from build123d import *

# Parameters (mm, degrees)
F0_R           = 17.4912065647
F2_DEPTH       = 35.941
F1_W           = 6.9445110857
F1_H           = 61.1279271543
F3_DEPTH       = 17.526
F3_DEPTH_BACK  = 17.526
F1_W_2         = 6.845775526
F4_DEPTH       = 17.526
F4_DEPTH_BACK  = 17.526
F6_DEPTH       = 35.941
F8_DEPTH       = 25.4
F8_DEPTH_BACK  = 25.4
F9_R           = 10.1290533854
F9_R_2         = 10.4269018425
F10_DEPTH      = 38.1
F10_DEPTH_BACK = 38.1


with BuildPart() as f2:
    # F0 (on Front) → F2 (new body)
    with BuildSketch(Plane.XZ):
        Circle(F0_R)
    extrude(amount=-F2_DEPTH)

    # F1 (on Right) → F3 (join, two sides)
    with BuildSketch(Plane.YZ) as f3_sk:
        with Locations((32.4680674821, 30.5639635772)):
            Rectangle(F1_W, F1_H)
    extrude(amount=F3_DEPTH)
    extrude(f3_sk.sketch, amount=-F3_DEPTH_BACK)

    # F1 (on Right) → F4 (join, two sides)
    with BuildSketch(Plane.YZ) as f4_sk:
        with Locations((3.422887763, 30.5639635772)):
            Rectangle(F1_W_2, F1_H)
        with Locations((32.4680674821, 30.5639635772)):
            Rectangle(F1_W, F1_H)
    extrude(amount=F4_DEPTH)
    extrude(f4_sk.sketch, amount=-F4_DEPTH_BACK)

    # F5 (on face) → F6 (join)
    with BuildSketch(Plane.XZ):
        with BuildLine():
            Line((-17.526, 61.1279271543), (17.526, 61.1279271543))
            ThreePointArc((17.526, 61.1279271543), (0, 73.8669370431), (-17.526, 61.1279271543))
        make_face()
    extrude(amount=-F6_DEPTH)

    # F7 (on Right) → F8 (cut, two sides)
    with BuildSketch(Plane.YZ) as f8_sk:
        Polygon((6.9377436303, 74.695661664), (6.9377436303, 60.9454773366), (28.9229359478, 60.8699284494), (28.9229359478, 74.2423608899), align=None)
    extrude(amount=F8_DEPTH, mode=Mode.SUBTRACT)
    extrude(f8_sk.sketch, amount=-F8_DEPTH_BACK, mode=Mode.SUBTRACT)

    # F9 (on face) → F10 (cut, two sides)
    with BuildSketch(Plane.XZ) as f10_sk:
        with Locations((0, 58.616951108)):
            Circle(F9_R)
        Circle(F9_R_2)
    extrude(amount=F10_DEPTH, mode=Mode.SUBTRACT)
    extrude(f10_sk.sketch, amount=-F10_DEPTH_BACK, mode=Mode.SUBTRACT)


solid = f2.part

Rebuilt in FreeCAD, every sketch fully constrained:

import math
import FreeCAD as App
import Part
import Sketcher
from FreeCAD import Vector
Q = App.Units.Quantity

doc = App.newDocument("Part")
body = doc.addObject("PartDesign::Body", "Body")

# Sketch on XZ plane
sketch1 = body.newObject("Sketcher::SketchObject", "Sketch")
sketch1.AttachmentSupport = (doc.getObject("XZ_Plane"), [""])
sketch1.MapMode = "FlatFace"
sketch1.addGeometry(Part.Circle(Vector(0, 0, 0), Vector(0, 0, 1), 17), False)
sketch1.addConstraint(Sketcher.Constraint("Coincident", 0, 3, -1, 1))
sketch1.addConstraint(Sketcher.Constraint("Diameter", 0, Q("34.982413 mm")))
pad1 = body.newObject("PartDesign::Pad", "Pad")
pad1.Profile = sketch1
pad1.Length = Q("1.415 in")
pad1.Reversed = True

# Sketch on YZ plane
sketch2 = body.newObject("Sketcher::SketchObject", "Sketch001")
sketch2.AttachmentSupport = (doc.getObject("YZ_Plane"), [""])
sketch2.MapMode = "FlatFace"
sketch2.addGeometry(Part.LineSegment(Vector(29, 61, 0), Vector(29, 0, 0)), False)
sketch2.addGeometry(Part.LineSegment(Vector(29, 0, 0), Vector(36, 0, 0)), False)
sketch2.addGeometry(Part.LineSegment(Vector(36, 0, 0), Vector(36, 61, 0)), False)
sketch2.addGeometry(Part.LineSegment(Vector(36, 61, 0), Vector(29, 61, 0)), False)
sketch2.addConstraint(Sketcher.Constraint("Coincident", 0, 2, 1, 1))
sketch2.addConstraint(Sketcher.Constraint("Coincident", 1, 2, 2, 1))
sketch2.addConstraint(Sketcher.Constraint("Coincident", 2, 2, 3, 1))
sketch2.addConstraint(Sketcher.Constraint("Coincident", 3, 2, 0, 1))
sketch2.addConstraint(Sketcher.Constraint("Vertical", 0))
sketch2.addConstraint(Sketcher.Constraint("Horizontal", 1))
sketch2.addConstraint(Sketcher.Constraint("Vertical", 2))
sketch2.addConstraint(Sketcher.Constraint("Horizontal", 3))
sketch2.addConstraint(Sketcher.Constraint("PointOnObject", 0, 2, -1))
sketch2.addConstraint(Sketcher.Constraint("DistanceX", 1, 1, 1, 2, Q("6.944511 mm")))
sketch2.addConstraint(Sketcher.Constraint("DistanceY", 0, 2, 0, 1, Q("61.127927 mm")))
sketch2.addConstraint(Sketcher.Constraint("DistanceX", -1, 1, 0, 2, Q("28.995812 mm")))
pad2 = body.newObject("PartDesign::Pad", "Pad001")
pad2.Profile = sketch2
pad2.Type = "TwoLengths"
pad2.Length = Q("0.69 in")
pad2.Length2 = Q("0.69 in")

# Sketch on YZ plane
sketch3 = body.newObject("Sketcher::SketchObject", "Sketch002")
sketch3.AttachmentSupport = (doc.getObject("YZ_Plane"), [""])
sketch3.MapMode = "FlatFace"
sketch3.addGeometry(Part.LineSegment(Vector(0, 61, 0), Vector(0, 0, 0)), False)
sketch3.addGeometry(Part.LineSegment(Vector(0, 0, 0), Vector(7, 0, 0)), False)
sketch3.addGeometry(Part.LineSegment(Vector(7, 0, 0), Vector(7, 61, 0)), False)
sketch3.addGeometry(Part.LineSegment(Vector(7, 61, 0), Vector(0, 61, 0)), False)
sketch3.addGeometry(Part.LineSegment(Vector(29, 61, 0), Vector(29, 0, 0)), False)
sketch3.addGeometry(Part.LineSegment(Vector(29, 0, 0), Vector(36, 0, 0)), False)
sketch3.addGeometry(Part.LineSegment(Vector(36, 0, 0), Vector(36, 61, 0)), False)
sketch3.addGeometry(Part.LineSegment(Vector(36, 61, 0), Vector(29, 61, 0)), False)
sketch3.addConstraint(Sketcher.Constraint("Coincident", 0, 2, 1, 1))
sketch3.addConstraint(Sketcher.Constraint("Coincident", 1, 2, 2, 1))
sketch3.addConstraint(Sketcher.Constraint("Coincident", 2, 2, 3, 1))
sketch3.addConstraint(Sketcher.Constraint("Coincident", 3, 2, 0, 1))
sketch3.addConstraint(Sketcher.Constraint("Coincident", 4, 2, 5, 1))
sketch3.addConstraint(Sketcher.Constraint("Coincident", 5, 2, 6, 1))
sketch3.addConstraint(Sketcher.Constraint("Coincident", 6, 2, 7, 1))
sketch3.addConstraint(Sketcher.Constraint("Coincident", 7, 2, 4, 1))
sketch3.addConstraint(Sketcher.Constraint("Vertical", 0))
sketch3.addConstraint(Sketcher.Constraint("Horizontal", 1))
sketch3.addConstraint(Sketcher.Constraint("Vertical", 2))
sketch3.addConstraint(Sketcher.Constraint("Horizontal", 3))
sketch3.addConstraint(Sketcher.Constraint("Vertical", 4))
sketch3.addConstraint(Sketcher.Constraint("Horizontal", 5))
sketch3.addConstraint(Sketcher.Constraint("Vertical", 6))
sketch3.addConstraint(Sketcher.Constraint("Horizontal", 7))
sketch3.addConstraint(Sketcher.Constraint("Coincident", 0, 2, -1, 1))
sketch3.addConstraint(Sketcher.Constraint("PointOnObject", 4, 2, -1))
sketch3.addConstraint(Sketcher.Constraint("Horizontal", 3, 2, 6, 2))
sketch3.addConstraint(Sketcher.Constraint("DistanceX", 5, 1, 5, 2, Q("6.944511 mm")))
sketch3.addConstraint(Sketcher.Constraint("DistanceX", 1, 1, 1, 2, Q("6.845776 mm")))
sketch3.addConstraint(Sketcher.Constraint("DistanceY", 0, 2, 0, 1, Q("61.127927 mm")))
sketch3.addConstraint(Sketcher.Constraint("DistanceX", -1, 1, 4, 2, Q("28.995812 mm")))
pad3 = body.newObject("PartDesign::Pad", "Pad002")
pad3.Profile = sketch3
pad3.Type = "TwoLengths"
pad3.Length = Q("0.69 in")
pad3.Length2 = Q("0.69 in")

# Sketch on XZ plane
sketch4 = body.newObject("Sketcher::SketchObject", "Sketch003")
sketch4.AttachmentSupport = (doc.getObject("XZ_Plane"), [""])
sketch4.MapMode = "FlatFace"
sketch4.addGeometry(Part.LineSegment(Vector(-18, 61, 0), Vector(18, 61, 0)), False)
sketch4.addGeometry(Part.ArcOfCircle(Part.Circle(Vector(0, 55, 0), Vector(0, 0, 1), 18), math.radians(18), math.radians(162)), False)
sketch4.addConstraint(Sketcher.Constraint("Coincident", 0, 1, 1, 2))
sketch4.addConstraint(Sketcher.Constraint("Coincident", 1, 1, 0, 2))
sketch4.addConstraint(Sketcher.Constraint("Horizontal", 0))
sketch4.addConstraint(Sketcher.Constraint("PointOnObject", 1, 3, -2))
sketch4.addConstraint(Sketcher.Constraint("DistanceX", 0, 1, 0, 2, Q("1.38 in")))
sketch4.addConstraint(Sketcher.Constraint("Radius", 1, Q("18.425413 mm")))
sketch4.addConstraint(Sketcher.Constraint("DistanceY", -1, 1, 1, 3, Q("55.441524 mm")))
pad4 = body.newObject("PartDesign::Pad", "Pad003")
pad4.Profile = sketch4
pad4.Length = Q("1.415 in")
pad4.Reversed = True

# Sketch on YZ plane
sketch5 = body.newObject("Sketcher::SketchObject", "Sketch004")
sketch5.AttachmentSupport = (doc.getObject("YZ_Plane"), [""])
sketch5.MapMode = "FlatFace"
sketch5.addGeometry(Part.LineSegment(Vector(7, 75, 0), Vector(7, 61, 0)), False)
sketch5.addGeometry(Part.LineSegment(Vector(7, 61, 0), Vector(29, 61, 0)), False)
sketch5.addGeometry(Part.LineSegment(Vector(29, 61, 0), Vector(29, 74, 0)), False)
sketch5.addGeometry(Part.LineSegment(Vector(29, 74, 0), Vector(7, 75, 0)), False)
sketch5.addConstraint(Sketcher.Constraint("Coincident", 0, 2, 1, 1))
sketch5.addConstraint(Sketcher.Constraint("Coincident", 1, 2, 2, 1))
sketch5.addConstraint(Sketcher.Constraint("Coincident", 2, 2, 3, 1))
sketch5.addConstraint(Sketcher.Constraint("Coincident", 3, 2, 0, 1))
sketch5.addConstraint(Sketcher.Constraint("Vertical", 0))
sketch5.addConstraint(Sketcher.Constraint("Vertical", 2))
sketch5.addConstraint(Sketcher.Constraint("DistanceY", 2, 2, 3, 2, Q("0.453301 mm")))
sketch5.addConstraint(Sketcher.Constraint("DistanceY", 0, 2, 0, 1, Q("13.750184 mm")))
sketch5.addConstraint(Sketcher.Constraint("DistanceY", 2, 1, 2, 2, Q("13.372432 mm")))
sketch5.addConstraint(Sketcher.Constraint("DistanceY", -1, 1, 1, 2, Q("60.869928 mm")))
sketch5.addConstraint(Sketcher.Constraint("Distance", 1, Q("21.985322 mm")))
sketch5.addConstraint(Sketcher.Constraint("DistanceX", -1, 1, 0, 2, Q("6.937744 mm")))
pocket1 = body.newObject("PartDesign::Pocket", "Pocket")
pocket1.Profile = sketch5
pocket1.Type = "ThroughAll"
pocket1.Midplane = True

# Sketch on XZ plane
sketch6 = body.newObject("Sketcher::SketchObject", "Sketch005")
sketch6.AttachmentSupport = (doc.getObject("XZ_Plane"), [""])
sketch6.MapMode = "FlatFace"
sketch6.addGeometry(Part.Circle(Vector(0, 59, 0), Vector(0, 0, 1), 10), False)
sketch6.addGeometry(Part.Circle(Vector(0, 0, 0), Vector(0, 0, 1), 10), False)
sketch6.addConstraint(Sketcher.Constraint("Coincident", 1, 3, -1, 1))
sketch6.addConstraint(Sketcher.Constraint("PointOnObject", 0, 3, -2))
sketch6.addConstraint(Sketcher.Constraint("Diameter", 0, Q("20.258107 mm")))
sketch6.addConstraint(Sketcher.Constraint("Diameter", 1, Q("20.853804 mm")))
sketch6.addConstraint(Sketcher.Constraint("DistanceY", -1, 1, 0, 3, Q("58.616951 mm")))
pocket2 = body.newObject("PartDesign::Pocket", "Pocket001")
pocket2.Profile = sketch6
pocket2.Type = "ThroughAll"
pocket2.Midplane = True

doc.recompute()
